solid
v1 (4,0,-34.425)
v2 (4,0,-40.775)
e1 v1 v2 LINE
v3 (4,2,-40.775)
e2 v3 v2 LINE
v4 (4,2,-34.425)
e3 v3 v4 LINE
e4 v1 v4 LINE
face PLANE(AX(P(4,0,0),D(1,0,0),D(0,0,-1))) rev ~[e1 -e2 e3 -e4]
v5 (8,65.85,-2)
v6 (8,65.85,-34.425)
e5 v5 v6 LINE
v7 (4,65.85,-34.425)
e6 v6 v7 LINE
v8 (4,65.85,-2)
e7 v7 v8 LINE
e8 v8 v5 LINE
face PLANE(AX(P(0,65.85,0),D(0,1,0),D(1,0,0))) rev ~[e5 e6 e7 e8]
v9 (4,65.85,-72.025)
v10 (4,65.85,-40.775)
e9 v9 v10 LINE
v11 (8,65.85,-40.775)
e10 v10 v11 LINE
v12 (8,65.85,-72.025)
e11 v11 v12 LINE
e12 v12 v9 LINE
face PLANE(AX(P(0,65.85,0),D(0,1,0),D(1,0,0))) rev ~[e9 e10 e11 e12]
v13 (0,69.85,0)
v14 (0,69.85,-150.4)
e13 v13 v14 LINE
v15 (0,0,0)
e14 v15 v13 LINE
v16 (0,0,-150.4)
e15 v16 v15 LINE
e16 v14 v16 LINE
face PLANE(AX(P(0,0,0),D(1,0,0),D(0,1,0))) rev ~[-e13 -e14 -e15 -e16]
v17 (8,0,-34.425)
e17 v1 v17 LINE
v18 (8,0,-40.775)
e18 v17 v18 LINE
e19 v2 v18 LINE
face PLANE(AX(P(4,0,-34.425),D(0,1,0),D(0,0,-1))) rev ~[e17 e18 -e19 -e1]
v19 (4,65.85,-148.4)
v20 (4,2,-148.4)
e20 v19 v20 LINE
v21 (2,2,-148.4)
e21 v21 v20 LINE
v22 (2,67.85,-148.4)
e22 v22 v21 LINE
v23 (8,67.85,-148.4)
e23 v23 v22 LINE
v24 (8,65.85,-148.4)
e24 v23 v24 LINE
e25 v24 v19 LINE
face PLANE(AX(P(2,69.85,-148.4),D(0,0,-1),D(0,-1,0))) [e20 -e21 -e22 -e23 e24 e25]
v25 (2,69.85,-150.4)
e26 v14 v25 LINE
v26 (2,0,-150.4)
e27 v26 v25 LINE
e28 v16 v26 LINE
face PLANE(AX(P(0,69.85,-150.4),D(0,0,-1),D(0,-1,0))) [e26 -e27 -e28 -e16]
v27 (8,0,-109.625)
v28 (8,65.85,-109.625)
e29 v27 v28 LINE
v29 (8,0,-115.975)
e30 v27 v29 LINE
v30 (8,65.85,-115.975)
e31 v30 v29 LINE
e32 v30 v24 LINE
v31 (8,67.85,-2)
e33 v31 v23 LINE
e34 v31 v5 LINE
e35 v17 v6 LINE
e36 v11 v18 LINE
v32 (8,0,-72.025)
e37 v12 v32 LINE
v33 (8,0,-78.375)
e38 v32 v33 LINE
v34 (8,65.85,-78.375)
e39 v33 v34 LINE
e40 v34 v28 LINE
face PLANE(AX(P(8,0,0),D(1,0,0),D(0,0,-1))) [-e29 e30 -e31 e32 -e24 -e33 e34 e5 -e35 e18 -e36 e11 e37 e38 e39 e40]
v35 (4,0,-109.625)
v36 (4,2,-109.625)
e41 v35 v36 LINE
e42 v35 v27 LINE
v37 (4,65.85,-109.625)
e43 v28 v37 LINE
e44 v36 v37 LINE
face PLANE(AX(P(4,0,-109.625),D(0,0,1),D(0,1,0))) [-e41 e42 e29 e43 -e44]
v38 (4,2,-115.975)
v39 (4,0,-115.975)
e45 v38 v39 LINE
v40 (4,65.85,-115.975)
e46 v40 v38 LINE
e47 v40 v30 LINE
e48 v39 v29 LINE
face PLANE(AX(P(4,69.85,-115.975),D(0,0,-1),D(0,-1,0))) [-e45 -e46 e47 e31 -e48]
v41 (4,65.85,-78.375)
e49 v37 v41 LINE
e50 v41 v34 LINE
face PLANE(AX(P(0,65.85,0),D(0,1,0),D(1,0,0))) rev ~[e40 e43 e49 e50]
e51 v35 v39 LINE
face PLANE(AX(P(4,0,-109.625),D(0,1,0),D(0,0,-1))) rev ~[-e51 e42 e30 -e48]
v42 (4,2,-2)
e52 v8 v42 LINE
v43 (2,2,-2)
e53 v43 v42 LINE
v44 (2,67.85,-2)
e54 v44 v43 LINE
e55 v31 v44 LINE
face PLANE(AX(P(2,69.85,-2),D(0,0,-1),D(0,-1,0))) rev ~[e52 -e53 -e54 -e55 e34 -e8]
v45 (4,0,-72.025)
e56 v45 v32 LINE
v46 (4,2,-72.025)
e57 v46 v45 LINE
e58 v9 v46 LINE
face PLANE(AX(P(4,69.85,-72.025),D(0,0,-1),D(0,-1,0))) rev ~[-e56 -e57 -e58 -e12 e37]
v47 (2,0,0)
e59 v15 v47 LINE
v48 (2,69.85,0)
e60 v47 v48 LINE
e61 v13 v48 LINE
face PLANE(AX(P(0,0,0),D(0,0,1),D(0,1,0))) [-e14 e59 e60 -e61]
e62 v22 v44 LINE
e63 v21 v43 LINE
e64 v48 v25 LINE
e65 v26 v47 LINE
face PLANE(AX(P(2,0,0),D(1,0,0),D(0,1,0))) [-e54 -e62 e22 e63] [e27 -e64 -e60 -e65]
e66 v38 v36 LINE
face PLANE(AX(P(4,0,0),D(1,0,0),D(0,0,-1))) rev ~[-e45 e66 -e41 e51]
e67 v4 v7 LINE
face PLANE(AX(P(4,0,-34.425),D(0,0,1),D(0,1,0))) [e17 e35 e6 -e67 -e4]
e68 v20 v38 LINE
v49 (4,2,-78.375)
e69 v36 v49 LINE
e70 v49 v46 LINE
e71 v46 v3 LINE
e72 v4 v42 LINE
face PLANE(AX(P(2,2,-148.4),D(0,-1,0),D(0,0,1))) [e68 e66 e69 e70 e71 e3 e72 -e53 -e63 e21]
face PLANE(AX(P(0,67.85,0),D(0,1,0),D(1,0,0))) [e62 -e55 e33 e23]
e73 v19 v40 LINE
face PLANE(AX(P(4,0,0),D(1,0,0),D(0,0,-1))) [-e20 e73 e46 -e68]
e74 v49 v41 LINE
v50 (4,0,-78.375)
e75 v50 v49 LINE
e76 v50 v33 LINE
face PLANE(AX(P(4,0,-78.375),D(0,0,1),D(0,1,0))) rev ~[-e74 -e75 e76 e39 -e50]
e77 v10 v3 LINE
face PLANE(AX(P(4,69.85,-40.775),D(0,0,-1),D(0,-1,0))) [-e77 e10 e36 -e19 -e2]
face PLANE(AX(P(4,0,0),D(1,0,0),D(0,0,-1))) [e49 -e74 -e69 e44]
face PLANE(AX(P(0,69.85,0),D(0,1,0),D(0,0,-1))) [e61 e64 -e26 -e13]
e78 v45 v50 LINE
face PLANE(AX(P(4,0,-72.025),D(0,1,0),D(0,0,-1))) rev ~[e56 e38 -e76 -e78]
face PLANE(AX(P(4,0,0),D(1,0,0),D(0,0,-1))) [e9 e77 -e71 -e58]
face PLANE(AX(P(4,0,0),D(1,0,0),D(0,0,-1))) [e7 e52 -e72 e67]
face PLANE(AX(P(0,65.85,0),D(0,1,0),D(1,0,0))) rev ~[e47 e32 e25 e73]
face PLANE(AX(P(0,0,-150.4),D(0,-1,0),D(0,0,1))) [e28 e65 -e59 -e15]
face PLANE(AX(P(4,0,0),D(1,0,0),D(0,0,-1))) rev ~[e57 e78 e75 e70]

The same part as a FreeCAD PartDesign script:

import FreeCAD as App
import Part
import Sketcher
from FreeCAD import Vector
Q = App.Units.Quantity


def add_polygon(sketch, points):
    """Adds a closed chain of lines whose ends are joined by coincident constraints."""
    first, n = sketch.GeometryCount, len(points)
    for a, b in zip(points, points[1:] + points[:1]):
        sketch.addGeometry(Part.LineSegment(App.Vector(*a, 0), App.Vector(*b, 0)), False)
    for i in range(n):
        sketch.addConstraint(Sketcher.Constraint("Coincident", first + i, 2, first + (i + 1) % n, 1))

doc = App.newDocument("Part")
body = doc.addObject("PartDesign::Body", "Body")

# Sketch on YZ plane
sketch1 = body.newObject("Sketcher::SketchObject", "Sketch")
sketch1.AttachmentSupport = (doc.getObject("YZ_Plane"), [""])
sketch1.MapMode = "FlatFace"
add_polygon(sketch1, [(70, 0), (0, 0), (0, -150), (70, -150)])  # lines 0-3
sketch1.addConstraint(Sketcher.Constraint("Horizontal", 0))
sketch1.addConstraint(Sketcher.Constraint("Vertical", 1))
sketch1.addConstraint(Sketcher.Constraint("Horizontal", 2))
sketch1.addConstraint(Sketcher.Constraint("Vertical", 3))
sketch1.addConstraint(Sketcher.Constraint("Coincident", 0, 2, -1, 1))
sketch1.addConstraint(Sketcher.Constraint("DistanceY", 1, 2, 1, 1, Q("150.4 mm")))
sketch1.addConstraint(Sketcher.Constraint("DistanceX", 0, 2, 0, 1, Q("69.85 mm")))
pad1 = body.newObject("PartDesign::Pad", "Pad")
pad1.Profile = sketch1
pad1.Length = 2

# Sketch on YZ plane
sketch2 = body.newObject("Sketcher::SketchObject", "Sketch001")
sketch2.AttachmentSupport = (doc.getObject("YZ_Plane"), [""])
sketch2.MapMode = "FlatFace"
sketch2.AttachmentOffset = App.Placement(Vector(0, 0, 2), App.Rotation())
add_polygon(sketch2, [(2, -2), (2, -148), (70, -148), (70, -2)])  # lines 0-3
sketch2.addConstraint(Sketcher.Constraint("Vertical", 0))
sketch2.addConstraint(Sketcher.Constraint("Horizontal", 1))
sketch2.addConstraint(Sketcher.Constraint("Vertical", 2))
sketch2.addConstraint(Sketcher.Constraint("Horizontal", 3))
sketch2.addConstraint(Sketcher.Constraint("DistanceX", -1, 1, 0, 2, Q("2 mm")))
sketch2.addConstraint(Sketcher.Constraint("DistanceY", 2, 2, -1, 1, Q("2 mm")))
sketch2.addConstraint(Sketcher.Constraint("DistanceY", 0, 2, 0, 1, Q("146.4 mm")))
sketch2.addConstraint(Sketcher.Constraint("DistanceX", 1, 1, 1, 2, Q("67.85 mm")))
pad2 = body.newObject("PartDesign::Pad", "Pad001")
pad2.Profile = sketch2
pad2.Length = 2

# Sketch on YZ plane
sketch3 = body.newObject("Sketcher::SketchObject", "Sketch002")
sketch3.AttachmentSupport = (doc.getObject("YZ_Plane"), [""])
sketch3.MapMode = "FlatFace"
sketch3.AttachmentOffset = App.Placement(Vector(0, 0, 4), App.Rotation())
add_polygon(sketch3, [(0, -110), (0, -116), (70, -116), (70, -110)])  # lines 0-3
add_polygon(sketch3, [(0, -72), (0, -78), (70, -78), (70, -72)])  # lines 4-7
add_polygon(sketch3, [(0, -34), (0, -41), (70, -41), (70, -34)])  # lines 8-11
sketch3.addConstraint(Sketcher.Constraint("Vertical", 0))
sketch3.addConstraint(Sketcher.Constraint("Horizontal", 1))
sketch3.addConstraint(Sketcher.Constraint("Vertical", 2))
sketch3.addConstraint(Sketcher.Constraint("Horizontal", 3))
sketch3.addConstraint(Sketcher.Constraint("Vertical", 4))
sketch3.addConstraint(Sketcher.Constraint("Horizontal", 5))
sketch3.addConstraint(Sketcher.Constraint("Vertical", 6))
sketch3.addConstraint(Sketcher.Constraint("Horizontal", 7))
sketch3.addConstraint(Sketcher.Constraint("Vertical", 8))
sketch3.addConstraint(Sketcher.Constraint("Horizontal", 9))
sketch3.addConstraint(Sketcher.Constraint("Vertical", 10))
sketch3.addConstraint(Sketcher.Constraint("Horizontal", 11))
sketch3.addConstraint(Sketcher.Constraint("PointOnObject", 0, 2, -2))
sketch3.addConstraint(Sketcher.Constraint("PointOnObject", 4, 2, -2))
sketch3.addConstraint(Sketcher.Constraint("PointOnObject", 8, 2, -2))
sketch3.addConstraint(Sketcher.Constraint("Vertical", 2, 2, 5, 2))
sketch3.addConstraint(Sketcher.Constraint("Vertical", 6, 2, 9, 2))
sketch3.addConstraint(Sketcher.Constraint("Equal", 2, 4))
sketch3.addConstraint(Sketcher.Constraint("Equal", 6, 8))
sketch3.addConstraint(Sketcher.Constraint("DistanceY", 0, 2, 0, 1, Q("6.35 mm")))
sketch3.addConstraint(Sketcher.Constraint("DistanceX", 1, 1, 1, 2, Q("69.85 mm")))
sketch3.addConstraint(Sketcher.Constraint("DistanceY", 0, 2, 4, 2, Q("37.6 mm")))
sketch3.addConstraint(Sketcher.Constraint("DistanceY", 4, 2, 8, 2, Q("37.6 mm")))
sketch3.addConstraint(Sketcher.Constraint("DistanceY", 0, 2, -1, 1, Q("115.975 mm")))
pad3 = body.newObject("PartDesign::Pad", "Pad002")
pad3.Profile = sketch3
pad3.Length = 4

# Sketch on XZ plane
sketch4 = body.newObject("Sketcher::SketchObject", "Sketch003")
sketch4.AttachmentSupport = (doc.getObject("XZ_Plane"), [""])
sketch4.MapMode = "FlatFace"
sketch4.AttachmentOffset = App.Placement(Vector(0, 0, -69.85), App.Rotation())
add_polygon(sketch4, [(8, -150), (2, -150), (2, 0), (8, 0)])  # lines 0-3
sketch4.addConstraint(Sketcher.Constraint("Horizontal", 0))
sketch4.addConstraint(Sketcher.Constraint("Vertical", 1))
sketch4.addConstraint(Sketcher.Constraint("Horizontal", 2))
sketch4.addConstraint(Sketcher.Constraint("Vertical", 3))
sketch4.addConstraint(Sketcher.Constraint("PointOnObject", 1, 2, -1))
sketch4.addConstraint(Sketcher.Constraint("DistanceX", 0, 2, 0, 1, Q("6 mm")))
sketch4.addConstraint(Sketcher.Constraint("DistanceY", 1, 1, 1, 2, Q("150.4 mm")))
sketch4.addConstraint(Sketcher.Constraint("DistanceX", -1, 1, 0, 2, Q("2 mm")))
pocket1 = body.newObject("PartDesign::Pocket", "Pocket")
pocket1.Profile = sketch4
pocket1.Length = 2
pocket1.Reversed = True

# Sketch on XZ plane
sketch5 = body.newObject("Sketcher::SketchObject", "Sketch004")
sketch5.AttachmentSupport = (doc.getObject("XZ_Plane"), [""])
sketch5.MapMode = "FlatFace"
sketch5.AttachmentOffset = App.Placement(Vector(0, 0, -67.85), App.Rotation())
add_polygon(sketch5, [(4, -148.4), (4, -116), (8, -116), (8, -148.4)])  # lines 0-3
add_polygon(sketch5, [(8, -78.4), (8, -109.6), (4, -109.6), (4, -78.4)])  # lines 4-7
add_polygon(sketch5, [(8, -40.8), (8, -72), (4, -72), (4, -40.8)])  # lines 8-11
add_polygon(sketch5, [(4, -34.4), (4, -2), (8, -2), (8, -34.4)])  # lines 12-15
sketch5.addConstraint(Sketcher.Constraint("Vertical", 0))
sketch5.addConstraint(Sketcher.Constraint("Horizontal", 1))
sketch5.addConstraint(Sketcher.Constraint("Vertical", 2))
sketch5.addConstraint(Sketcher.Constraint("Horizontal", 3))
sketch5.addConstraint(Sketcher.Constraint("Vertical", 4))
sketch5.addConstraint(Sketcher.Constraint("Horizontal", 5))
sketch5.addConstraint(Sketcher.Constraint("Vertical", 6))
sketch5.addConstraint(Sketcher.Constraint("Horizontal", 7))
sketch5.addConstraint(Sketcher.Constraint("Vertical", 8))
sketch5.addConstraint(Sketcher.Constraint("Horizontal", 9))
sketch5.addConstraint(Sketcher.Constraint("Vertical", 10))
sketch5.addConstraint(Sketcher.Constraint("Horizontal", 11))
sketch5.addConstraint(Sketcher.Constraint("Vertical", 12))
sketch5.addConstraint(Sketcher.Constraint("Horizontal", 13))
sketch5.addConstraint(Sketcher.Constraint("Vertical", 14))
sketch5.addConstraint(Sketcher.Constraint("Horizontal", 15))
sketch5.addConstraint(Sketcher.Constraint("Vertical", 2, 2, 4, 2))
sketch5.addConstraint(Sketcher.Constraint("Vertical", 3, 2, 5, 2))
sketch5.addConstraint(Sketcher.Constraint("Vertical", 7, 2, 8, 2))
sketch5.addConstraint(Sketcher.Constraint("Vertical", 6, 2, 9, 2))
sketch5.addConstraint(Sketcher.Constraint("Vertical", 10, 2, 12, 2))
sketch5.addConstraint(Sketcher.Constraint("Vertical", 11, 2, 13, 2))
sketch5.addConstraint(Sketcher.Constraint("Equal", 6, 8))
sketch5.addConstraint(Sketcher.Constraint("Equal", 2, 12))
sketch5.addConstraint(Sketcher.Constraint("DistanceX", 1, 1, 1, 2, Q("4 mm")))
sketch5.addConstraint(Sketcher.Constraint("DistanceX", -1, 1, 0, 2, Q("4 mm")))
sketch5.addConstraint(Sketcher.Constraint("DistanceY", 12, 2, -1, 1, Q("2 mm")))
sketch5.addConstraint(Sketcher.Constraint("DistanceY", 4, 2, 4, 1, Q("31.25 mm")))
sketch5.addConstraint(Sketcher.Constraint("DistanceY", 2, 2, -1, 1, Q("148.4 mm")))
sketch5.addConstraint(Sketcher.Constraint("DistanceY", 0, 2, 6, 2, Q("37.6 mm")))
sketch5.addConstraint(Sketcher.Constraint("DistanceY", 4, 2, 8, 2, Q("37.6 mm")))
sketch5.addConstraint(Sketcher.Constraint("DistanceY", 8, 2, 14, 2, Q("37.6 mm")))
pad4 = body.newObject("PartDesign::Pad", "Pad003")
pad4.Profile = sketch5
pad4.Length = 2

doc.recompute()
